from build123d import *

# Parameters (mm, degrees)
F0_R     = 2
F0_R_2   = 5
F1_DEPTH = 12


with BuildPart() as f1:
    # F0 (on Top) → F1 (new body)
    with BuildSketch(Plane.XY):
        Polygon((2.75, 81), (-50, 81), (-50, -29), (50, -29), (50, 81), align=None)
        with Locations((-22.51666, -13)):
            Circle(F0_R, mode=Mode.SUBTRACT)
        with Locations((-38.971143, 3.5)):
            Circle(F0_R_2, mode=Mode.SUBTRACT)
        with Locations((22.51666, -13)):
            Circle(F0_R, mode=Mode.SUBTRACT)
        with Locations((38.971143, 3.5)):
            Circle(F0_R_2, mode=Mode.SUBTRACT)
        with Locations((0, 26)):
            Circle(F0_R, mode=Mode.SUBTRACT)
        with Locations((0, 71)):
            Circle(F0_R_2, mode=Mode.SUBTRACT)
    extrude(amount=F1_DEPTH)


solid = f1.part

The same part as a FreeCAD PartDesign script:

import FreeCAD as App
import Part
import Sketcher

V = App.Vector

doc = App.newDocument("Part")
body = doc.addObject("PartDesign::Body", "Body")

sketch1 = body.newObject("Sketcher::SketchObject", "Sketch")
sketch1.AttachmentSupport = (doc.getObject("XY_Plane"), [""])
sketch1.MapMode = "FlatFace"
sketch1.addGeometry([
    Part.LineSegment(V(-50, 81, 0), V(-50, -29, 0)),
    Part.LineSegment(V(-50, -29, 0), V(50, -29, 0)),
    Part.LineSegment(V(50, -29, 0), V(50, 81, 0)),
    Part.LineSegment(V(50, 81, 0), V(-50, 81, 0)),
    Part.Circle(V(-22.51666, -13, 0), V(0, 0, 1), 2),
    Part.Circle(V(-38.971143, 3.5, 0), V(0, 0, 1), 5),
    Part.Circle(V(22.51666, -13, 0), V(0, 0, 1), 2),
    Part.Circle(V(38.971143, 3.5, 0), V(0, 0, 1), 5),
    Part.Circle(V(0, 26, 0), V(0, 0, 1), 2),
    Part.Circle(V(0, 71, 0), V(0, 0, 1), 5),
], False)
sketch1.addConstraint([
    Sketcher.Constraint("Coincident", 0, 2, 1, 1),
    Sketcher.Constraint("Coincident", 1, 2, 2, 1),
    Sketcher.Constraint("Coincident", 2, 2, 3, 1),
    Sketcher.Constraint("Coincident", 3, 2, 0, 1),
    Sketcher.Constraint("Vertical", 0),
    Sketcher.Constraint("Horizontal", 1),
    Sketcher.Constraint("Vertical", 2),
    Sketcher.Constraint("Horizontal", 3),
    Sketcher.Constraint("Equal", 4, 6),
    Sketcher.Constraint("Equal", 5, 7),
    Sketcher.Constraint("Equal", 6, 8),
    Sketcher.Constraint("Equal", 7, 9),
    Sketcher.Constraint("Symmetric", 4, 3, 6, 3, -2),
    Sketcher.Constraint("Symmetric", 5, 3, 7, 3, -2),
    Sketcher.Constraint("PointOnObject", 8, 3, -2),
    Sketcher.Constraint("PointOnObject", 9, 3, -2),
    Sketcher.Constraint("Diameter", 4, 4.0),
    Sketcher.Constraint("Diameter", 5, 10.0),
    Sketcher.Constraint("DistanceX", 1, 1, 1, 2, 100.0),
    Sketcher.Constraint("DistanceY", 0, 2, 0, 1, 110.0),
    Sketcher.Constraint("DistanceY", 4, 3, -1, 1, 13.0),
    Sketcher.Constraint("DistanceY", -1, 1, 8, 3, 26.0),
    Sketcher.Constraint("DistanceY", -1, 1, 9, 3, 71.0),
    Sketcher.Constraint("DistanceX", 0, 2, -1, 1, 50.0),
    Sketcher.Constraint("DistanceY", 0, 2, -1, 1, 29.0),
    Sketcher.Constraint("DistanceY", -1, 1, 5, 3, 3.5),
    Sketcher.Constraint("DistanceX", 4, 3, -1, 1, 22.51666),
    Sketcher.Constraint("DistanceX", 5, 3, -1, 1, 38.971143),
])
pad1 = body.newObject("PartDesign::Pad", "Pad")
pad1.Profile = sketch1
pad1.Length = 12

doc.recompute()
